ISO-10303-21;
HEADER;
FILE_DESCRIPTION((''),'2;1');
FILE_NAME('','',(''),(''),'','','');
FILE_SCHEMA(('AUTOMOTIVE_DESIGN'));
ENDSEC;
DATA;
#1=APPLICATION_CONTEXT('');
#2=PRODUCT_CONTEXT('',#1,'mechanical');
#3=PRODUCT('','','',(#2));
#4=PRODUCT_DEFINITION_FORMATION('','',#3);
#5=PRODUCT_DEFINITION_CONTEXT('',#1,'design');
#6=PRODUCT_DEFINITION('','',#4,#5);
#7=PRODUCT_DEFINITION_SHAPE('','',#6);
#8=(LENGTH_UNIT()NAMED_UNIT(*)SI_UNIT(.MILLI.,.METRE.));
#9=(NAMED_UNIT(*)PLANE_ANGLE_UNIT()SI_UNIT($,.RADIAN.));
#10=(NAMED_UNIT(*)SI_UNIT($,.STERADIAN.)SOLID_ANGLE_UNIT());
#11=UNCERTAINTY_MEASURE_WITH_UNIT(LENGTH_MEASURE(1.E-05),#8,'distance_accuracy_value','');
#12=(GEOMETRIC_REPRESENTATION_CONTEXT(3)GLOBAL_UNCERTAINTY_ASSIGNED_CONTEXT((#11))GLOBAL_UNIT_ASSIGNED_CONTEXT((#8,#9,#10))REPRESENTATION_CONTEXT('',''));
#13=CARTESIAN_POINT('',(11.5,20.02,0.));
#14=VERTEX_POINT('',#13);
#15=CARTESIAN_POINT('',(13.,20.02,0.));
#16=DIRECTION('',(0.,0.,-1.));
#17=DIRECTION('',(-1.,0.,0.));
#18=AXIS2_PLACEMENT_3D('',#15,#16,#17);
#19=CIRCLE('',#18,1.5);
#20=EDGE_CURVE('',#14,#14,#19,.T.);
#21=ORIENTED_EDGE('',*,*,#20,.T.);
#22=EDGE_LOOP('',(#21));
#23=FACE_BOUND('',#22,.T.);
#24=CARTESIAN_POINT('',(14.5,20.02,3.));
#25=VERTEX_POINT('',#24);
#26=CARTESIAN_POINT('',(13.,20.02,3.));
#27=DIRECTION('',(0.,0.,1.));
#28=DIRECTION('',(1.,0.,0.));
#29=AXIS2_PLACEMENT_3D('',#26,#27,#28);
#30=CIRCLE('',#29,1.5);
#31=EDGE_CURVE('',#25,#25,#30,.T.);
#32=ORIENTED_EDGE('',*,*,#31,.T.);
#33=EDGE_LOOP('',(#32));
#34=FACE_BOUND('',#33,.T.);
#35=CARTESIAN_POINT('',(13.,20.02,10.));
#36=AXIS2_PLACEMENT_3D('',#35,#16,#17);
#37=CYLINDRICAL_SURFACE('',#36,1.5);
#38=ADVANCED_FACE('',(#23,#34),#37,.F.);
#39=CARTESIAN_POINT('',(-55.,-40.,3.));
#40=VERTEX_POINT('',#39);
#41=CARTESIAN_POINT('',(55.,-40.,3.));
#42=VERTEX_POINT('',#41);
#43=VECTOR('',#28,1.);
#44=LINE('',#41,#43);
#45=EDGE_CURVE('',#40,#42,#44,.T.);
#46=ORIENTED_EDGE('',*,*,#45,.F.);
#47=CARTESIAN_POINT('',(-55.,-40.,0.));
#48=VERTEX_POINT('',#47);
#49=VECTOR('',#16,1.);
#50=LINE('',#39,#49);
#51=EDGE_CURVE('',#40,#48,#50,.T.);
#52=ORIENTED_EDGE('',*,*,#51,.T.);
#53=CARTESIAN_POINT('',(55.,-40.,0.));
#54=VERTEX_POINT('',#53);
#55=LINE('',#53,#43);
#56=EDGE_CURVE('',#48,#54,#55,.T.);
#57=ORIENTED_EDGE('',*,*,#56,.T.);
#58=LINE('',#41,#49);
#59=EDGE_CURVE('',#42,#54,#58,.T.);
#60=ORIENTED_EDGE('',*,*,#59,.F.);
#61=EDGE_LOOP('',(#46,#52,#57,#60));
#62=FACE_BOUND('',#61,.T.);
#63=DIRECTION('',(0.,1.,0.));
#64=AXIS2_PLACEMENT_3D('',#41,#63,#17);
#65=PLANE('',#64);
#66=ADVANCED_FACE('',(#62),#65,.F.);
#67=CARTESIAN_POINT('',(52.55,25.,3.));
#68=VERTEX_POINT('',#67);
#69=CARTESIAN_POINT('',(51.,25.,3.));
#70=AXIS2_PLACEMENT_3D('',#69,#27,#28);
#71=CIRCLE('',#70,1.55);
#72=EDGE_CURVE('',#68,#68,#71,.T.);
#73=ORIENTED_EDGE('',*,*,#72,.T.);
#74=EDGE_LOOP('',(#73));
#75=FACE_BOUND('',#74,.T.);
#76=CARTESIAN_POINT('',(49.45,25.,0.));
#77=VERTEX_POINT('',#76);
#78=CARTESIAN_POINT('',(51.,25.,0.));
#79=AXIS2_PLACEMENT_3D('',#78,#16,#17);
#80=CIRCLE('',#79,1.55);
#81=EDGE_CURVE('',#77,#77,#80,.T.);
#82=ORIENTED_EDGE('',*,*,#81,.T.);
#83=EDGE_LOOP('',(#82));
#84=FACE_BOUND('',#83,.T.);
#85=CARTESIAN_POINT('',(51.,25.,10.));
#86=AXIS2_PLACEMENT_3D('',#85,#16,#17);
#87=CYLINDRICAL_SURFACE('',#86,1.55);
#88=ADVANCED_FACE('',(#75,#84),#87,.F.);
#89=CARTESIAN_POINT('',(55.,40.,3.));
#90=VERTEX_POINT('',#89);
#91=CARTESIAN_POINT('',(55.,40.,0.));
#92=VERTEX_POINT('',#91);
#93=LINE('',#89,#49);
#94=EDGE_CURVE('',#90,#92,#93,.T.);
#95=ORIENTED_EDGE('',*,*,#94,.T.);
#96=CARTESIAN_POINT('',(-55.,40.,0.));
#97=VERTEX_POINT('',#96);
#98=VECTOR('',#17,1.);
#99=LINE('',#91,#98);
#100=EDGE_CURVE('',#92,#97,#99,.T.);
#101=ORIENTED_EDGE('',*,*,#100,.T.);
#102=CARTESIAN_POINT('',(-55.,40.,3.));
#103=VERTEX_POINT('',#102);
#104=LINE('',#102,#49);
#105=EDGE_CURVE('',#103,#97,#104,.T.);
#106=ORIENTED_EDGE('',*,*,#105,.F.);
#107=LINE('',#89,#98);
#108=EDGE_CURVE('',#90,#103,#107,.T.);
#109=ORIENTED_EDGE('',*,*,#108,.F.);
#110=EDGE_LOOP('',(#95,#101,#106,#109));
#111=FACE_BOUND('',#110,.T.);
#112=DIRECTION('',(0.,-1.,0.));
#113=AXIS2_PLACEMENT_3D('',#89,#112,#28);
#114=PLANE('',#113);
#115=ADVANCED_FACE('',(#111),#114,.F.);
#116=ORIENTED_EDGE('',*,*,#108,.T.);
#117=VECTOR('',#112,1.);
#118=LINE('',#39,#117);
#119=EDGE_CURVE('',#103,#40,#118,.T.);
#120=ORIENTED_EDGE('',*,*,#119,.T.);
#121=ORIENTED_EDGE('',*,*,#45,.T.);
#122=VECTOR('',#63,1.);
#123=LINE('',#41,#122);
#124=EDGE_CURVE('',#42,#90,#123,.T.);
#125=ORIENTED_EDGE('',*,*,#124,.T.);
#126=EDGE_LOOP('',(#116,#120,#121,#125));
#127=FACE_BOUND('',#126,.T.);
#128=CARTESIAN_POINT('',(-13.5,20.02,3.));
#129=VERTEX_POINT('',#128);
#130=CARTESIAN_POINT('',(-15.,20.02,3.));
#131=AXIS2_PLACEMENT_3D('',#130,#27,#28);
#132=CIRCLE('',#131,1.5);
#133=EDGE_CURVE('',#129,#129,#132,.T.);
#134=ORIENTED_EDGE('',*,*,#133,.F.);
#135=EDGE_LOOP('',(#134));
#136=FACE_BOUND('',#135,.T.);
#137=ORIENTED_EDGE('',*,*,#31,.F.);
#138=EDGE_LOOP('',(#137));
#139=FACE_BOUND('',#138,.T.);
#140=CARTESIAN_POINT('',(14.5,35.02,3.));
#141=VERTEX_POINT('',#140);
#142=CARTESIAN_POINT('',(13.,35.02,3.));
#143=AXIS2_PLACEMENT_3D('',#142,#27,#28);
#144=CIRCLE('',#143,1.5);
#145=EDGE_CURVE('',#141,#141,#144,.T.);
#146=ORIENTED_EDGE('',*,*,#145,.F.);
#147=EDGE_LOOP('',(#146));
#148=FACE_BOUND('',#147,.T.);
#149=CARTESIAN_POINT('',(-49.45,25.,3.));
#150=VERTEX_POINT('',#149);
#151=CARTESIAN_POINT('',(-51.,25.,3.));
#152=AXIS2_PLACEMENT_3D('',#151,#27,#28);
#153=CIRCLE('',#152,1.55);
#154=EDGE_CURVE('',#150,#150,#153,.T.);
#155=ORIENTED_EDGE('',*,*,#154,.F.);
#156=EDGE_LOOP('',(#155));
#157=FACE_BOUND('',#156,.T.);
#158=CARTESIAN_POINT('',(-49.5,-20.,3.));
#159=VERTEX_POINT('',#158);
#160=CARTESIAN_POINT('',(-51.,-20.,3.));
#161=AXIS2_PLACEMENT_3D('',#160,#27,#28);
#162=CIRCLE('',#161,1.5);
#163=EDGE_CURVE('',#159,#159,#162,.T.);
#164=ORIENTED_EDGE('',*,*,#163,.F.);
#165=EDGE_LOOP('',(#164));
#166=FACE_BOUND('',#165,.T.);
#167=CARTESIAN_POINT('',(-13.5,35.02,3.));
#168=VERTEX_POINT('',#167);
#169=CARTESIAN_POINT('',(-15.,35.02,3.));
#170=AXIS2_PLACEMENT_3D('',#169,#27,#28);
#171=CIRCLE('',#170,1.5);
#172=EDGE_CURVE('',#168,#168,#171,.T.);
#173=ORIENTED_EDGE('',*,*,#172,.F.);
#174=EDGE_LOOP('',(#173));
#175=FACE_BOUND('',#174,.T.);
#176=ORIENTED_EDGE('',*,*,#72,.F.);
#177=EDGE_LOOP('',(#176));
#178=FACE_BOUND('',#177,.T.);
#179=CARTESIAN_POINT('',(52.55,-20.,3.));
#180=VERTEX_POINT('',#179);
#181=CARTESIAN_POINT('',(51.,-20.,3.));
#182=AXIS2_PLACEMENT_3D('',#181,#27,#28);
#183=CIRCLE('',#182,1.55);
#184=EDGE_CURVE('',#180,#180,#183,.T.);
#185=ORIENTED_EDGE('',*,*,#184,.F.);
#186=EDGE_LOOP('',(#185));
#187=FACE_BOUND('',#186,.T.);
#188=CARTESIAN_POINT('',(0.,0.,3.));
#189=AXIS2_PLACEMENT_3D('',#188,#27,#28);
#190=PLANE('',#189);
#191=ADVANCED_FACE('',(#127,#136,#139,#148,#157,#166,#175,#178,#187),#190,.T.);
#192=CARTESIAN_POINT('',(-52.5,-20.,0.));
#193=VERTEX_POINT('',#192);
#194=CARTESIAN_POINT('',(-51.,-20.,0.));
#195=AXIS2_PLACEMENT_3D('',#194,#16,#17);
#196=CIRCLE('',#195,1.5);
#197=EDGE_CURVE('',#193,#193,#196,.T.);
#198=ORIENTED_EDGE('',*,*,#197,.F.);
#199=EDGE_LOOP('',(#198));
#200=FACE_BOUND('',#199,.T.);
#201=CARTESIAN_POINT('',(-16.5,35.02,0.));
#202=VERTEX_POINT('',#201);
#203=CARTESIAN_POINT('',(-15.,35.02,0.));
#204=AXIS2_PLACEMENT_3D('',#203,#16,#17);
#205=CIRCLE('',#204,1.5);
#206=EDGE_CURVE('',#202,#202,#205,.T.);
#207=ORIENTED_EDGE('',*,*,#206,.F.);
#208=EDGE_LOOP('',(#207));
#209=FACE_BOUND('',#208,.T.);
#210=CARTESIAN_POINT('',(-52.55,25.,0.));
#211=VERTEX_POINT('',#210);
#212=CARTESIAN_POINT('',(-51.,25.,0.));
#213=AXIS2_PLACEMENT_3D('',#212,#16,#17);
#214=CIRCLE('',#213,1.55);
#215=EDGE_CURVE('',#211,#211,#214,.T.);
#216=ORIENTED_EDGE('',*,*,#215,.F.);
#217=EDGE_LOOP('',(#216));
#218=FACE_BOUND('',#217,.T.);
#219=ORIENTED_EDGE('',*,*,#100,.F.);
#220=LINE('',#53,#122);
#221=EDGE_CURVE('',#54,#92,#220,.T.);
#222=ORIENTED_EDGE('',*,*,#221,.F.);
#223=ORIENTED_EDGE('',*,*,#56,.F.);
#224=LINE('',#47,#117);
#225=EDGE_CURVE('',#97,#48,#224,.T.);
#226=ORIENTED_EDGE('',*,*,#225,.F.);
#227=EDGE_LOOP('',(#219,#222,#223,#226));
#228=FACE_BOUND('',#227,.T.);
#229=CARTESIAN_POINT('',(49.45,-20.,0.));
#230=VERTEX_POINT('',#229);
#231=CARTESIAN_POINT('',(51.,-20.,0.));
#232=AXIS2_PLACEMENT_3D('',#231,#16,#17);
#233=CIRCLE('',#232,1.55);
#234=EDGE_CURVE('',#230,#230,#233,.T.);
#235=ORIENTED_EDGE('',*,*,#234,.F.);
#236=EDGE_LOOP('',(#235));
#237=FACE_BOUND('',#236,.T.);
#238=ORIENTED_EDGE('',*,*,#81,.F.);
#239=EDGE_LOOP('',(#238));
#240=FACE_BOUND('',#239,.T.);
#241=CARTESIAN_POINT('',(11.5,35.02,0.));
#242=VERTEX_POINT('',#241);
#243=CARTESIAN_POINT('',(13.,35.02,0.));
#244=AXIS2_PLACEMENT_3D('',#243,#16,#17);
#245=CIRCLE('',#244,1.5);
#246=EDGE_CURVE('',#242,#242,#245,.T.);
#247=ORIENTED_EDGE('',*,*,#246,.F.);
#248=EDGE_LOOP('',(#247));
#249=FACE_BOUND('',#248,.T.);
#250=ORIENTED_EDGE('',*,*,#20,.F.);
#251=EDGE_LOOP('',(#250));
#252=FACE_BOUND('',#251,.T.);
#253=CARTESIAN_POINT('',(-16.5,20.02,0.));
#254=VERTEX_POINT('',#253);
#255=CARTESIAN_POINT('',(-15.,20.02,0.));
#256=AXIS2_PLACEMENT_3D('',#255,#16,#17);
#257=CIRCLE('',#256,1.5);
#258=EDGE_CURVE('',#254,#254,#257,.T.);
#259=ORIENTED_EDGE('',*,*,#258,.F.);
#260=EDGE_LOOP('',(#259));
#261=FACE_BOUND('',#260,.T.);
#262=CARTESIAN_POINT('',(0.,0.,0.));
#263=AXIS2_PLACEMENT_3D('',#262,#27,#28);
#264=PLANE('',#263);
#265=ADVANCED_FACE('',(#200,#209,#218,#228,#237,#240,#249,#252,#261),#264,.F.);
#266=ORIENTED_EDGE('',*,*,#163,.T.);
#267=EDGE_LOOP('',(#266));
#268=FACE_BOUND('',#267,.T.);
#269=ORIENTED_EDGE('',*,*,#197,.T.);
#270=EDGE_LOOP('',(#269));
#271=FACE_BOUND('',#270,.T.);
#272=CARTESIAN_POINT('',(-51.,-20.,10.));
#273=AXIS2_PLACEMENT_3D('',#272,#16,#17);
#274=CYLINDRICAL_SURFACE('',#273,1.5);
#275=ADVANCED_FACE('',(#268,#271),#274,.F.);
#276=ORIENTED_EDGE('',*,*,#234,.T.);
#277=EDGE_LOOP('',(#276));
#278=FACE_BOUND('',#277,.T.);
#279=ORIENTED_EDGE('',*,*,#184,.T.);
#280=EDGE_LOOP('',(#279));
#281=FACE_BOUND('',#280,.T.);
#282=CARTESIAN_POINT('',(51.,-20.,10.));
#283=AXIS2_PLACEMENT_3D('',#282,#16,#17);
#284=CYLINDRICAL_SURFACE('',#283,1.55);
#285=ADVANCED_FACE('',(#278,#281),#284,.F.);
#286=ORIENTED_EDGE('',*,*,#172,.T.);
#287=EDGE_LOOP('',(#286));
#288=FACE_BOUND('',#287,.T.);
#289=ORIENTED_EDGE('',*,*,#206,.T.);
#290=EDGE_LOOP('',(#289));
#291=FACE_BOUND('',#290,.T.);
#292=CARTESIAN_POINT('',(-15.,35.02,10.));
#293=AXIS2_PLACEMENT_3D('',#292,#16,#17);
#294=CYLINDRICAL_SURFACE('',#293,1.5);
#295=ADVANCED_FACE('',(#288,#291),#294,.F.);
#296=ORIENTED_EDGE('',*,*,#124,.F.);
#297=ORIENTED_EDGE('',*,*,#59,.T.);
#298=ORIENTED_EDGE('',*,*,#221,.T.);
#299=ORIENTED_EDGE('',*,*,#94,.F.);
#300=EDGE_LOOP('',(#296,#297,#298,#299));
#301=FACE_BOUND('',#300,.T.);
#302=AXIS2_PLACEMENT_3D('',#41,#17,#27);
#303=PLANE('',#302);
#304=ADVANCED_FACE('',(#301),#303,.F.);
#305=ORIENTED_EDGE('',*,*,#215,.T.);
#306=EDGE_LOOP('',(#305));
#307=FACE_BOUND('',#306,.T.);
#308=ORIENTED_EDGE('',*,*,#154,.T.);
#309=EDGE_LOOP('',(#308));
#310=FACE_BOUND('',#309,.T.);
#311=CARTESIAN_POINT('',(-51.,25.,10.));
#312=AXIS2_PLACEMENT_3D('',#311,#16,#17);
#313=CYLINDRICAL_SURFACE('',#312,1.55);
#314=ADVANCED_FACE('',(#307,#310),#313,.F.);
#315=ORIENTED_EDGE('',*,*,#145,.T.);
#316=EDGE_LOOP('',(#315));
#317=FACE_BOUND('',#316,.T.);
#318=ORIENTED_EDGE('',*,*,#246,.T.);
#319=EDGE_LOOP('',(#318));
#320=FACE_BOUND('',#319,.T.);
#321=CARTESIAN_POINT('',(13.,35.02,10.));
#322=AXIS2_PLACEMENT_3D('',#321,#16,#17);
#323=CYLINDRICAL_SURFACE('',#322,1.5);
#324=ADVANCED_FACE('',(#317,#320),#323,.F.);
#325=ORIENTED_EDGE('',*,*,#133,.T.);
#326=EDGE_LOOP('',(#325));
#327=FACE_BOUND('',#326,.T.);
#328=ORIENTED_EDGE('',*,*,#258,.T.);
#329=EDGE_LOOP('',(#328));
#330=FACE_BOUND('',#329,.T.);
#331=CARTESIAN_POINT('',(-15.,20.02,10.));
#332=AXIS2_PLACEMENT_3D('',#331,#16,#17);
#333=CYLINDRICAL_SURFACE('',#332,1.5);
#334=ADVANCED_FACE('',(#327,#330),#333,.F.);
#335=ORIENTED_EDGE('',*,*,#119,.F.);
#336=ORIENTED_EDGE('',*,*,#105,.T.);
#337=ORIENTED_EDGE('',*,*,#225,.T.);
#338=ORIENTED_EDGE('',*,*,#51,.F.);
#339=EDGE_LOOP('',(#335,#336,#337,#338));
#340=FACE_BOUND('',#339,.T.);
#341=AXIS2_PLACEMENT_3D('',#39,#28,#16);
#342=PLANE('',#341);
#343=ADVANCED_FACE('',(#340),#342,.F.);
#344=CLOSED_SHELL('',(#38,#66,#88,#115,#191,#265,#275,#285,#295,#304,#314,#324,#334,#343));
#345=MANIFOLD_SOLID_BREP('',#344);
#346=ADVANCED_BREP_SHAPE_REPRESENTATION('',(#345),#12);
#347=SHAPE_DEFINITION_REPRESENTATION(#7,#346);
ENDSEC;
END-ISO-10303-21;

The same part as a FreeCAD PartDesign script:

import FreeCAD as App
import Part
import Sketcher
from FreeCAD import Vector

doc = App.newDocument("Part")
params = doc.addObject("Spreadsheet::Sheet", "Params")
for row, (alias, value) in enumerate([
    ("sketch1_width", "110 mm"),
    ("sketch1_height", "80 mm"),
    ("pad1_length", "3 mm"),
    ("sketch2_diameter", "3 mm"),
    ("pocket1_length", "10 mm"),
    ("sketch3_diameter", "3 mm"),
    ("sketch3_diameter2", "3.1 mm"),
    ("pocket2_length", "10 mm"),
], start=1):
    params.set(f"A{row}", alias)
    params.set(f"B{row}", "=" + value)
    params.setAlias(f"B{row}", alias)

body = doc.addObject("PartDesign::Body", "Body")

# Sketch on XY plane
sketch1 = doc.addObject("Sketcher::SketchObject", "Sketch")
body.addObject(sketch1)
sketch1.AttachmentSupport = (doc.XY_Plane, [""])
sketch1.MapMode = "FlatFace"
sketch1.addGeometry(Part.LineSegment(Vector(-55, 40, 0), Vector(-55, -40, 0)), False)
sketch1.addGeometry(Part.LineSegment(Vector(-55, -40, 0), Vector(55, -40, 0)), False)
sketch1.addGeometry(Part.LineSegment(Vector(55, -40, 0), Vector(55, 40, 0)), False)
sketch1.addGeometry(Part.LineSegment(Vector(55, 40, 0), Vector(-55, 40, 0)), False)
sketch1.addConstraint(Sketcher.Constraint("Coincident", 0, 2, 1, 1))
sketch1.addConstraint(Sketcher.Constraint("Coincident", 1, 2, 2, 1))
sketch1.addConstraint(Sketcher.Constraint("Coincident", 2, 2, 3, 1))
sketch1.addConstraint(Sketcher.Constraint("Coincident", 3, 2, 0, 1))
sketch1.addConstraint(Sketcher.Constraint("Vertical", 0))
sketch1.addConstraint(Sketcher.Constraint("Horizontal", 1))
sketch1.addConstraint(Sketcher.Constraint("Vertical", 2))
sketch1.addConstraint(Sketcher.Constraint("Horizontal", 3))
sketch1.addConstraint(Sketcher.Constraint("Symmetric", 0, 2, 2, 2, -1, 1))
sketch1.addConstraint(Sketcher.Constraint("DistanceX", 1, 1, 1, 2, 110.0))
sketch1.addConstraint(Sketcher.Constraint("DistanceY", 0, 2, 0, 1, 80.0))
sketch1.setExpression("Constraints[9]", "Params.sketch1_width")
sketch1.setExpression("Constraints[10]", "Params.sketch1_height")
pad1 = doc.addObject("PartDesign::Pad", "Pad")
body.addObject(pad1)
pad1.Profile = sketch1
pad1.setExpression("Length", "Params.pad1_length")

# Sketch on XY plane
sketch2 = doc.addObject("Sketcher::SketchObject", "Sketch001")
body.addObject(sketch2)
sketch2.AttachmentSupport = (doc.XY_Plane, [""])
sketch2.MapMode = "FlatFace"
sketch2.addGeometry(Part.Circle(Vector(13, 20.02, 0), Vector(0, 0, 1), 1.5), False)
sketch2.addGeometry(Part.Circle(Vector(13, 35.02, 0), Vector(0, 0, 1), 1.5), False)
sketch2.addGeometry(Part.Circle(Vector(-15, 20.02, 0), Vector(0, 0, 1), 1.5), False)
sketch2.addGeometry(Part.Circle(Vector(-15, 35.02, 0), Vector(0, 0, 1), 1.5), False)
sketch2.addConstraint(Sketcher.Constraint("Equal", 0, 1))
sketch2.addConstraint(Sketcher.Constraint("Equal", 1, 2))
sketch2.addConstraint(Sketcher.Constraint("Equal", 2, 3))
sketch2.addConstraint(Sketcher.Constraint("Horizontal", 0, 3, 2, 3))
sketch2.addConstraint(Sketcher.Constraint("Horizontal", 1, 3, 3, 3))
sketch2.addConstraint(Sketcher.Constraint("Vertical", 0, 3, 1, 3))
sketch2.addConstraint(Sketcher.Constraint("Vertical", 2, 3, 3, 3))
sketch2.addConstraint(Sketcher.Constraint("Diameter", 0, 3.0))
sketch2.addConstraint(Sketcher.Constraint("DistanceX", -1, 1, 0, 3, 13.0))
sketch2.addConstraint(Sketcher.Constraint("DistanceX", 2, 3, -1, 1, 15.0))
sketch2.addConstraint(Sketcher.Constraint("DistanceY", 0, 3, 1, 3, 15.0))
sketch2.addConstraint(Sketcher.Constraint("DistanceY", -1, 1, 0, 3, 20.02))
sketch2.setExpression("Constraints[7]", "Params.sketch2_diameter")
pocket1 = doc.addObject("PartDesign::Pocket", "Pocket")
body.addObject(pocket1)
pocket1.Profile = sketch2
pocket1.setExpression("Length", "Params.pocket1_length")
pocket1.Reversed = True

# Sketch on XY plane
sketch3 = doc.addObject("Sketcher::SketchObject", "Sketch002")
body.addObject(sketch3)
sketch3.AttachmentSupport = (doc.XY_Plane, [""])
sketch3.MapMode = "FlatFace"
sketch3.addGeometry(Part.Circle(Vector(51, -20, 0), Vector(0, 0, 1), 1.55), False)
sketch3.addGeometry(Part.Circle(Vector(51, 25, 0), Vector(0, 0, 1), 1.55), False)
sketch3.addGeometry(Part.Circle(Vector(-51, -20, 0), Vector(0, 0, 1), 1.5), False)
sketch3.addGeometry(Part.Circle(Vector(-51, 25, 0), Vector(0, 0, 1), 1.55), False)
sketch3.addConstraint(Sketcher.Constraint("Equal", 0, 1))
sketch3.addConstraint(Sketcher.Constraint("Equal", 1, 3))
sketch3.addConstraint(Sketcher.Constraint("Symmetric", 0, 3, 2, 3, -2))
sketch3.addConstraint(Sketcher.Constraint("Symmetric", 1, 3, 3, 3, -2))
sketch3.addConstraint(Sketcher.Constraint("Vertical", 0, 3, 1, 3))
sketch3.addConstraint(Sketcher.Constraint("Diameter", 2, 3.0))
sketch3.addConstraint(Sketcher.Constraint("Diameter", 0, 3.1))
sketch3.addConstraint(Sketcher.Constraint("DistanceX", -1, 1, 0, 3, 51.0))
sketch3.addConstraint(Sketcher.Constraint("DistanceY", 0, 3, -1, 1, 20.0))
sketch3.addConstraint(Sketcher.Constraint("DistanceY", -1, 1, 1, 3, 25.0))
sketch3.setExpression("Constraints[5]", "Params.sketch3_diameter")
sketch3.setExpression("Constraints[6]", "Params.sketch3_diameter2")
pocket2 = doc.addObject("PartDesign::Pocket", "Pocket001")
body.addObject(pocket2)
pocket2.Profile = sketch3
pocket2.setExpression("Length", "Params.pocket2_length")
pocket2.Reversed = True

doc.recompute()
